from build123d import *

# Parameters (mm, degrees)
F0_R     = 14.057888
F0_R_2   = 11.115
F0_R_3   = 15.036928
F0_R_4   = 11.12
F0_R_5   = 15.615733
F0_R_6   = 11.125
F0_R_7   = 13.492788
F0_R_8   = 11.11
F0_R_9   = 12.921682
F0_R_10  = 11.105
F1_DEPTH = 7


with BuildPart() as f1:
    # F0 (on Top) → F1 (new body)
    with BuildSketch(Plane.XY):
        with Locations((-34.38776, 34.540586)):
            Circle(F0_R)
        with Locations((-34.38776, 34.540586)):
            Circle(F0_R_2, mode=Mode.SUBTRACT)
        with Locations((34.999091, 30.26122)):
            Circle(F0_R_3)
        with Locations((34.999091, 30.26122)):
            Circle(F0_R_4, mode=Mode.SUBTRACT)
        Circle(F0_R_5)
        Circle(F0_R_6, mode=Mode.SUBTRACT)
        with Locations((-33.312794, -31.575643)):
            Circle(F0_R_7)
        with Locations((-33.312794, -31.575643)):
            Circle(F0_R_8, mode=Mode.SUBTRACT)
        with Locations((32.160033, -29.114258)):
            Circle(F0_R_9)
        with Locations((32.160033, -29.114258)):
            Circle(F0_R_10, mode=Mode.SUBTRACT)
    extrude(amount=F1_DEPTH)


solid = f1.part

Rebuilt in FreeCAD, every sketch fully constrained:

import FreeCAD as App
import Part
import Sketcher

doc = App.newDocument("Part")
params = doc.addObject("Spreadsheet::Sheet", "Params")
for row, (alias, value) in enumerate([
    ("sketch1_diameter", "22.23 mm"),
    ("sketch1_diameter2", "22.24 mm"),
    ("sketch1_diameter3", "22.25 mm"),
    ("sketch1_diameter4", "22.22 mm"),
    ("sketch1_diameter5", "22.21 mm"),
    ("pad1_length", "7 mm"),
], start=1):
    params.set(f"A{row}", alias)
    params.set(f"B{row}", "=" + value)
    params.setAlias(f"B{row}", alias)

body = doc.addObject("PartDesign::Body", "Body")
body.AllowCompound = True

# Sketch on XY plane
sketch1 = doc.addObject("Sketcher::SketchObject", "Sketch")
body.addObject(sketch1)
sketch1.AttachmentSupport = (doc.XY_Plane, [""])
sketch1.MapMode = "FlatFace"
sketch1.addGeometry([
    Part.Circle(App.Vector(-34, 35, 0), App.Vector(0, 0, 1), 14),  # 0
    Part.Circle(App.Vector(-34, 35, 0), App.Vector(0, 0, 1), 11),  # 1
    Part.Circle(App.Vector(35, 30, 0), App.Vector(0, 0, 1), 15),  # 2
    Part.Circle(App.Vector(35, 30, 0), App.Vector(0, 0, 1), 11),  # 3
    Part.Circle(App.Vector(0, 0, 0), App.Vector(0, 0, 1), 16),  # 4
    Part.Circle(App.Vector(0, 0, 0), App.Vector(0, 0, 1), 11),  # 5
    Part.Circle(App.Vector(-33, -32, 0), App.Vector(0, 0, 1), 13),  # 6
    Part.Circle(App.Vector(-33, -32, 0), App.Vector(0, 0, 1), 11),  # 7
    Part.Circle(App.Vector(32, -29, 0), App.Vector(0, 0, 1), 13),  # 8
    Part.Circle(App.Vector(32, -29, 0), App.Vector(0, 0, 1), 11),  # 9
], False)
sketch1.addConstraint([
    Sketcher.Constraint("Coincident", 4, 3, -1, 1),
    Sketcher.Constraint("Coincident", 5, 3, -1, 1),
    Sketcher.Constraint("Coincident", 1, 3, 0, 3),
    Sketcher.Constraint("Coincident", 3, 3, 2, 3),
    Sketcher.Constraint("Coincident", 7, 3, 6, 3),
    Sketcher.Constraint("Coincident", 9, 3, 8, 3),
    Sketcher.Constraint("Diameter", 1, 22.23),
    Sketcher.Constraint("Diameter", 3, 22.24),
    Sketcher.Constraint("Diameter", 5, 22.25),
    Sketcher.Constraint("Diameter", 7, 22.22),
    Sketcher.Constraint("Diameter", 9, 22.21),
    Sketcher.Constraint("Diameter", 0, 28.115776),
    Sketcher.Constraint("Diameter", 2, 30.073856),
    Sketcher.Constraint("Diameter", 4, 31.231466),
    Sketcher.Constraint("Diameter", 6, 26.985576),
    Sketcher.Constraint("Diameter", 8, 25.843364),
    Sketcher.Constraint("DistanceX", 0, 3, -1, 1, 34.38776),
    Sketcher.Constraint("DistanceX", -1, 1, 2, 3, 34.999091),
    Sketcher.Constraint("DistanceY", -1, 1, 2, 3, 30.26122),
    Sketcher.Constraint("DistanceY", 6, 3, 0, 3, 66.116229),
    Sketcher.Constraint("DistanceX", 8, 3, 2, 3, 2.839058),
    Sketcher.Constraint("DistanceY", -1, 1, 0, 3, 34.540586),
    Sketcher.Constraint("DistanceX", 6, 3, -1, 1, 33.312794),
    Sketcher.Constraint("DistanceY", 8, 3, -1, 1, 29.114258),
])
sketch1.setExpression("Constraints[6]", "Params.sketch1_diameter")
sketch1.setExpression("Constraints[7]", "Params.sketch1_diameter2")
sketch1.setExpression("Constraints[8]", "Params.sketch1_diameter3")
sketch1.setExpression("Constraints[9]", "Params.sketch1_diameter4")
sketch1.setExpression("Constraints[10]", "Params.sketch1_diameter5")
pad1 = doc.addObject("PartDesign::Pad", "Pad")
body.addObject(pad1)
pad1.Profile = sketch1
pad1.setExpression("Length", "Params.pad1_length")

doc.recompute()
